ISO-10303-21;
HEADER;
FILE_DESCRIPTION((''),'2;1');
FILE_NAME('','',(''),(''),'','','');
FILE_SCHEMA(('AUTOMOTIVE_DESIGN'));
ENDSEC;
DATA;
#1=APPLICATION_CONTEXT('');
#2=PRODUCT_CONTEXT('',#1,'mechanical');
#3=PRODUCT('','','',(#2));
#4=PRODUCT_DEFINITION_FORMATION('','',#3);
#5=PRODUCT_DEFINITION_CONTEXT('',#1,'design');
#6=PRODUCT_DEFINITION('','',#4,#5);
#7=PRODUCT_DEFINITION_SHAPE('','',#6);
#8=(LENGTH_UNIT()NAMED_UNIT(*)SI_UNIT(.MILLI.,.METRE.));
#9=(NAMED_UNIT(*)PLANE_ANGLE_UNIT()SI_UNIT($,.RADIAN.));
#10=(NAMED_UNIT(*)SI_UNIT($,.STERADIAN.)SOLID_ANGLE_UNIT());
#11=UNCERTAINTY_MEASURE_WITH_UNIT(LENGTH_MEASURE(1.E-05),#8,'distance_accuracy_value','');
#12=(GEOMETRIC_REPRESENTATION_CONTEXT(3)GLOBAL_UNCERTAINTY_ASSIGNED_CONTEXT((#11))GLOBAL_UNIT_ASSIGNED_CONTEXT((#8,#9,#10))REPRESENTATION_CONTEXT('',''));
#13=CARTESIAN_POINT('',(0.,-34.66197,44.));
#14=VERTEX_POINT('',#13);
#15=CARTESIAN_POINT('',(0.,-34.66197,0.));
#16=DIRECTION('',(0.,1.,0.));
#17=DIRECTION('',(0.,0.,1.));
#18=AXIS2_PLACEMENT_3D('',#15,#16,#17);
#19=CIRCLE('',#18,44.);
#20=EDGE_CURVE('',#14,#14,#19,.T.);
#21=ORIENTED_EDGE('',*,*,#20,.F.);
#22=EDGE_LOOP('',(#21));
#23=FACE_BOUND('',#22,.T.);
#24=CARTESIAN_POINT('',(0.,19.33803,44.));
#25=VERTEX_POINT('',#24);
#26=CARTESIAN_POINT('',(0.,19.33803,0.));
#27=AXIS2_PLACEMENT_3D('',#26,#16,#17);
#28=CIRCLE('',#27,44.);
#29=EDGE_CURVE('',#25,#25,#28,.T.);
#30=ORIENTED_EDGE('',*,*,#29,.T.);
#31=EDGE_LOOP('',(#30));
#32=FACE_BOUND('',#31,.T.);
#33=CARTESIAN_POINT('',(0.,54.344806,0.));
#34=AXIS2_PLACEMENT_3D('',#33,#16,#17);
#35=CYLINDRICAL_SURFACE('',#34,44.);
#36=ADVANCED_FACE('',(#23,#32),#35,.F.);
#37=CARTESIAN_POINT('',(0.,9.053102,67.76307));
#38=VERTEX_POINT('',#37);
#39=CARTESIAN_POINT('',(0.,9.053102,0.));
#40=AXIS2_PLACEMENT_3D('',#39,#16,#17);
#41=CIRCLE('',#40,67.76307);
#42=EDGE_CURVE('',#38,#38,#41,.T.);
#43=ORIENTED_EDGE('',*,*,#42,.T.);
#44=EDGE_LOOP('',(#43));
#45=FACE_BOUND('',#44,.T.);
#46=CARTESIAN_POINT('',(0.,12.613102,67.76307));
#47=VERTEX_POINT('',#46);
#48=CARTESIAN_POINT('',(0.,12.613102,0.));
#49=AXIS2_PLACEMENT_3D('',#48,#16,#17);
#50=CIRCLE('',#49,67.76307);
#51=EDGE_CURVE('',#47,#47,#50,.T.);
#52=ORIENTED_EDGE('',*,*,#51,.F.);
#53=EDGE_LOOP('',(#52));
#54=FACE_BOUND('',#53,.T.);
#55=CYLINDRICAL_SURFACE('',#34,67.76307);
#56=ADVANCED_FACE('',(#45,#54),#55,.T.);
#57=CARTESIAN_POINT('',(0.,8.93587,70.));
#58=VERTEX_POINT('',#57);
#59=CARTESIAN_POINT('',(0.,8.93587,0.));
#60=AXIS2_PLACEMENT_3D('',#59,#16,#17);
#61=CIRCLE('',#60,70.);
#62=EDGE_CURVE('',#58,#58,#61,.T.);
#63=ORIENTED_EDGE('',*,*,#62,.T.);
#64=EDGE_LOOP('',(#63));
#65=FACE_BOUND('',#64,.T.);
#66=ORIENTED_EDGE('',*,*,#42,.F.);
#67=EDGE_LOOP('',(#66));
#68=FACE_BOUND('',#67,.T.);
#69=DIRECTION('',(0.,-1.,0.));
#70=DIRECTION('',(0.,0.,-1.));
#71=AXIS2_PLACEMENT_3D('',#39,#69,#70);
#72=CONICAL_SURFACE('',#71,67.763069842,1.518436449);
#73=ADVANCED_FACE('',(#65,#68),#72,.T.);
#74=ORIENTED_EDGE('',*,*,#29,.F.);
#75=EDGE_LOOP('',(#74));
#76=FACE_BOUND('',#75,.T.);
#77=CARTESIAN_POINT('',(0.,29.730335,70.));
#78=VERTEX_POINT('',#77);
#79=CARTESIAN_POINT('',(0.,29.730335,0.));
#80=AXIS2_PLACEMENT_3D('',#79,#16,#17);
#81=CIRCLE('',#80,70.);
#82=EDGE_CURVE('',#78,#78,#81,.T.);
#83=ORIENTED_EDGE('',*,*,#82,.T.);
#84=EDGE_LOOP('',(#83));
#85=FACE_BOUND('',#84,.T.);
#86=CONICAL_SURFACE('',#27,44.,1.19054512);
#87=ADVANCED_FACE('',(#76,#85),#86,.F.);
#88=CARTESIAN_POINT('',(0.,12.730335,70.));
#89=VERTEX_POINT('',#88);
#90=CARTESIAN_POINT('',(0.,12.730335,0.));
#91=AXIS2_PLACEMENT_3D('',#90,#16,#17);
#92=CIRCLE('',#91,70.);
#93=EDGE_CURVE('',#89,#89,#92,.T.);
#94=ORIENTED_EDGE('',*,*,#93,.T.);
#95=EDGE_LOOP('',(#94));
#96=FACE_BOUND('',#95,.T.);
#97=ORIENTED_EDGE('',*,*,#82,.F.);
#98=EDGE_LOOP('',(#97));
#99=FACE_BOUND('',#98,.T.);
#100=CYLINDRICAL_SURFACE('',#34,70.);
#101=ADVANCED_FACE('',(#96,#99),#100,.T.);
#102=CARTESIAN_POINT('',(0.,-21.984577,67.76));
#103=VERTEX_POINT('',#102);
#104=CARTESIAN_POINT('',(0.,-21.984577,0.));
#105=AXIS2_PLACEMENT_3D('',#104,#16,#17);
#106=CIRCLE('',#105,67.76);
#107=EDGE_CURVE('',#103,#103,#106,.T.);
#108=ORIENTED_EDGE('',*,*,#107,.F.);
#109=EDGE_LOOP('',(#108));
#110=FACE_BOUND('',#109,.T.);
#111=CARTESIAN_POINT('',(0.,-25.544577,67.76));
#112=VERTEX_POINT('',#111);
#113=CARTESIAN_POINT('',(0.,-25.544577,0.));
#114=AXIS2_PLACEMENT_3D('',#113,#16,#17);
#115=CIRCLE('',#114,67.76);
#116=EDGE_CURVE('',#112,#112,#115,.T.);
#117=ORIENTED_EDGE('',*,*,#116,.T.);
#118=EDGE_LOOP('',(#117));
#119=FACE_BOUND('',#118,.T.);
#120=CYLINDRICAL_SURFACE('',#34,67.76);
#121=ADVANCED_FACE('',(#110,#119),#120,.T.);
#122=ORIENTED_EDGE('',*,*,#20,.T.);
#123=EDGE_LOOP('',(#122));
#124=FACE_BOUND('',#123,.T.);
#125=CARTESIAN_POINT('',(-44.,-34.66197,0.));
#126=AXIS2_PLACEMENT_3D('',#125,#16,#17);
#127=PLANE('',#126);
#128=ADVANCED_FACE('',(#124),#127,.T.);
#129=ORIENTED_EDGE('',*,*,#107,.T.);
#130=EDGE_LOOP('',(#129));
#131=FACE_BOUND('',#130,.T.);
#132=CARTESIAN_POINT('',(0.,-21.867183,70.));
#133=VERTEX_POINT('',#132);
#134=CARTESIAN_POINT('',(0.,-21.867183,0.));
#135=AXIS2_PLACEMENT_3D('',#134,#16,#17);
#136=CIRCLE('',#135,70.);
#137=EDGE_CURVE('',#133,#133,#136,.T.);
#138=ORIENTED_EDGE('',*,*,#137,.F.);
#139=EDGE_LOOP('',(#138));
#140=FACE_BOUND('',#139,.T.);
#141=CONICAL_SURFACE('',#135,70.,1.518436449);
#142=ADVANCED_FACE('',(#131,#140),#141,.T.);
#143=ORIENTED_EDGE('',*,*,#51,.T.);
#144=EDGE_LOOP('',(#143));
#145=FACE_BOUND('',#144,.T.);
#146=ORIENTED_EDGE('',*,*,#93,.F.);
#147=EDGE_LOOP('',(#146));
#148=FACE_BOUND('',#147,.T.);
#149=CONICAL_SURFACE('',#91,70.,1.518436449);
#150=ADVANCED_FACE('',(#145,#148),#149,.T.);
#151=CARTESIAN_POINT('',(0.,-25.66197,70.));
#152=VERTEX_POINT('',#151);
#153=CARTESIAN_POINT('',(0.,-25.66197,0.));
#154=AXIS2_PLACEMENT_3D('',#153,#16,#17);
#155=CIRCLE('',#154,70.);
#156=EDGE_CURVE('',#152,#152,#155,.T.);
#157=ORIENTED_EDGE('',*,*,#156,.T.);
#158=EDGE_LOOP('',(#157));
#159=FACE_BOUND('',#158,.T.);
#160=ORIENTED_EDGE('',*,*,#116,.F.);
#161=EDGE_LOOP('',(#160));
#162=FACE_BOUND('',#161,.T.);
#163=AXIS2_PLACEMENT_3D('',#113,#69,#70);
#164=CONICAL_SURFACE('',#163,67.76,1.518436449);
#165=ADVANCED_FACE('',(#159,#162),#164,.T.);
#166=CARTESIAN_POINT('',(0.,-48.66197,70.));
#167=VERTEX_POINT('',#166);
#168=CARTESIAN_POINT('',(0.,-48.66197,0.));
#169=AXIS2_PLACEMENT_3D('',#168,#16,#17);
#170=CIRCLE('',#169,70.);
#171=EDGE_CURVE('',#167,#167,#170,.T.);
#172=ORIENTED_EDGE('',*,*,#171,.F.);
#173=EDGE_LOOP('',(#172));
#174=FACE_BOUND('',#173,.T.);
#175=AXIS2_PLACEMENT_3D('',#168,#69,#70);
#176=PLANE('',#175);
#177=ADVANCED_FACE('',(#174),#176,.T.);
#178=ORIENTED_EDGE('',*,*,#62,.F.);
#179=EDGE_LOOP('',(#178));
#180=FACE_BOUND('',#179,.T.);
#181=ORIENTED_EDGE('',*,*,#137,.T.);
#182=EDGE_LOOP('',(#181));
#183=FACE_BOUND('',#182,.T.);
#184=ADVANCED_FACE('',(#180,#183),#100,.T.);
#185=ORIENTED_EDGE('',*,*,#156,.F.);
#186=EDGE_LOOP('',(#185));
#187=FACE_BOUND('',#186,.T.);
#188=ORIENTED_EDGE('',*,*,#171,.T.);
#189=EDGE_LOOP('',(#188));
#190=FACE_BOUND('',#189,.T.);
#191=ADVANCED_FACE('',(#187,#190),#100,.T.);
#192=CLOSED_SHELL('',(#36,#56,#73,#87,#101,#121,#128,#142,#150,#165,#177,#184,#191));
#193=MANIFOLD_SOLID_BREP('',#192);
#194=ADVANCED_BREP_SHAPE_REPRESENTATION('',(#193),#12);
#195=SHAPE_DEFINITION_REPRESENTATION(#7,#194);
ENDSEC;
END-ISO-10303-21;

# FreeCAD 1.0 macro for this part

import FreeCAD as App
import Part
import Sketcher
from FreeCAD import Vector
Q = App.Units.Quantity


def add_polygon(sketch, points):
    """Adds a closed chain of lines whose ends are joined by coincident constraints."""
    first, n = sketch.GeometryCount, len(points)
    for a, b in zip(points, points[1:] + points[:1]):
        sketch.addGeometry(Part.LineSegment(App.Vector(*a, 0), App.Vector(*b, 0)), False)
    for i in range(n):
        sketch.addConstraint(Sketcher.Constraint("Coincident", first + i, 2, first + (i + 1) % n, 1))

doc = App.newDocument("Part")
body = doc.addObject("PartDesign::Body", "Body")

# Sketch on XY plane
sketch1 = body.newObject("Sketcher::SketchObject", "Sketch")
sketch1.AttachmentSupport = (doc.getObject("XY_Plane"), [""])
sketch1.MapMode = "FlatFace"
add_polygon(sketch1, [(-70, -48.7), (0, -48.7), (0, -34.7), (-44, -34.7), (-44, 19.3), (-70, 29.7), (-70, 12.7), (-67.8, 12.6), (-67.8, 9.1), (-70, 8.9), (-70, -21.9), (-67.8, -22), (-67.8, -25.5), (-70, -25.7)])  # lines 0-13
sketch1.addConstraint(Sketcher.Constraint("Horizontal", 0))
sketch1.addConstraint(Sketcher.Constraint("Vertical", 1))
sketch1.addConstraint(Sketcher.Constraint("Horizontal", 2))
sketch1.addConstraint(Sketcher.Constraint("Vertical", 3))
sketch1.addConstraint(Sketcher.Constraint("Vertical", 5))
sketch1.addConstraint(Sketcher.Constraint("Vertical", 7))
sketch1.addConstraint(Sketcher.Constraint("Vertical", 9))
sketch1.addConstraint(Sketcher.Constraint("Vertical", 11))
sketch1.addConstraint(Sketcher.Constraint("Vertical", 13))
sketch1.addConstraint(Sketcher.Constraint("PointOnObject", 0, 2, -2))
sketch1.addConstraint(Sketcher.Constraint("Parallel", 6, 10))
sketch1.addConstraint(Sketcher.Constraint("Parallel", 8, 12))
sketch1.addConstraint(Sketcher.Constraint("Vertical", 5, 2, 8, 2))
sketch1.addConstraint(Sketcher.Constraint("Vertical", 9, 2, 12, 2))
sketch1.addConstraint(Sketcher.Constraint("Equal", 7, 11))
sketch1.addConstraint(Sketcher.Constraint("Equal", 6, 8))
sketch1.addConstraint(Sketcher.Constraint("DistanceX", 0, 1, 0, 2, 70.0))
sketch1.addConstraint(Sketcher.Constraint("DistanceX", 2, 2, 2, 1, 44.0))
sketch1.addConstraint(Sketcher.Constraint("DistanceY", 1, 1, 1, 2, 14.0))
sketch1.addConstraint(Sketcher.Constraint("DistanceY", 3, 1, 3, 2, 54.0))
sketch1.addConstraint(Sketcher.Constraint("DistanceY", 5, 2, 5, 1, 17.0))
sketch1.addConstraint(Sketcher.Constraint("DistanceY", 13, 2, 13, 1, 23.0))
sketch1.addConstraint(Sketcher.Constraint("Angle", 6, Q("-3 deg")))
sketch1.addConstraint(Sketcher.Constraint("Distance", 4, 28.0))
sketch1.addConstraint(Sketcher.Constraint("DistanceY", 7, 2, 7, 1, 3.56))
sketch1.addConstraint(Sketcher.Constraint("Distance", 6, 2.24))
sketch1.addConstraint(Sketcher.Constraint("DistanceX", 10, 2, -1, 1, 67.76))
sketch1.addConstraint(Sketcher.Constraint("DistanceY", 0, 2, -1, 1, 48.66197))
revolution = body.newObject("PartDesign::Revolution", "Revolution")
revolution.Profile = sketch1
revolution.ReferenceAxis = (sketch1, ["V_Axis"])
revolution.Angle = 360

doc.recompute()
